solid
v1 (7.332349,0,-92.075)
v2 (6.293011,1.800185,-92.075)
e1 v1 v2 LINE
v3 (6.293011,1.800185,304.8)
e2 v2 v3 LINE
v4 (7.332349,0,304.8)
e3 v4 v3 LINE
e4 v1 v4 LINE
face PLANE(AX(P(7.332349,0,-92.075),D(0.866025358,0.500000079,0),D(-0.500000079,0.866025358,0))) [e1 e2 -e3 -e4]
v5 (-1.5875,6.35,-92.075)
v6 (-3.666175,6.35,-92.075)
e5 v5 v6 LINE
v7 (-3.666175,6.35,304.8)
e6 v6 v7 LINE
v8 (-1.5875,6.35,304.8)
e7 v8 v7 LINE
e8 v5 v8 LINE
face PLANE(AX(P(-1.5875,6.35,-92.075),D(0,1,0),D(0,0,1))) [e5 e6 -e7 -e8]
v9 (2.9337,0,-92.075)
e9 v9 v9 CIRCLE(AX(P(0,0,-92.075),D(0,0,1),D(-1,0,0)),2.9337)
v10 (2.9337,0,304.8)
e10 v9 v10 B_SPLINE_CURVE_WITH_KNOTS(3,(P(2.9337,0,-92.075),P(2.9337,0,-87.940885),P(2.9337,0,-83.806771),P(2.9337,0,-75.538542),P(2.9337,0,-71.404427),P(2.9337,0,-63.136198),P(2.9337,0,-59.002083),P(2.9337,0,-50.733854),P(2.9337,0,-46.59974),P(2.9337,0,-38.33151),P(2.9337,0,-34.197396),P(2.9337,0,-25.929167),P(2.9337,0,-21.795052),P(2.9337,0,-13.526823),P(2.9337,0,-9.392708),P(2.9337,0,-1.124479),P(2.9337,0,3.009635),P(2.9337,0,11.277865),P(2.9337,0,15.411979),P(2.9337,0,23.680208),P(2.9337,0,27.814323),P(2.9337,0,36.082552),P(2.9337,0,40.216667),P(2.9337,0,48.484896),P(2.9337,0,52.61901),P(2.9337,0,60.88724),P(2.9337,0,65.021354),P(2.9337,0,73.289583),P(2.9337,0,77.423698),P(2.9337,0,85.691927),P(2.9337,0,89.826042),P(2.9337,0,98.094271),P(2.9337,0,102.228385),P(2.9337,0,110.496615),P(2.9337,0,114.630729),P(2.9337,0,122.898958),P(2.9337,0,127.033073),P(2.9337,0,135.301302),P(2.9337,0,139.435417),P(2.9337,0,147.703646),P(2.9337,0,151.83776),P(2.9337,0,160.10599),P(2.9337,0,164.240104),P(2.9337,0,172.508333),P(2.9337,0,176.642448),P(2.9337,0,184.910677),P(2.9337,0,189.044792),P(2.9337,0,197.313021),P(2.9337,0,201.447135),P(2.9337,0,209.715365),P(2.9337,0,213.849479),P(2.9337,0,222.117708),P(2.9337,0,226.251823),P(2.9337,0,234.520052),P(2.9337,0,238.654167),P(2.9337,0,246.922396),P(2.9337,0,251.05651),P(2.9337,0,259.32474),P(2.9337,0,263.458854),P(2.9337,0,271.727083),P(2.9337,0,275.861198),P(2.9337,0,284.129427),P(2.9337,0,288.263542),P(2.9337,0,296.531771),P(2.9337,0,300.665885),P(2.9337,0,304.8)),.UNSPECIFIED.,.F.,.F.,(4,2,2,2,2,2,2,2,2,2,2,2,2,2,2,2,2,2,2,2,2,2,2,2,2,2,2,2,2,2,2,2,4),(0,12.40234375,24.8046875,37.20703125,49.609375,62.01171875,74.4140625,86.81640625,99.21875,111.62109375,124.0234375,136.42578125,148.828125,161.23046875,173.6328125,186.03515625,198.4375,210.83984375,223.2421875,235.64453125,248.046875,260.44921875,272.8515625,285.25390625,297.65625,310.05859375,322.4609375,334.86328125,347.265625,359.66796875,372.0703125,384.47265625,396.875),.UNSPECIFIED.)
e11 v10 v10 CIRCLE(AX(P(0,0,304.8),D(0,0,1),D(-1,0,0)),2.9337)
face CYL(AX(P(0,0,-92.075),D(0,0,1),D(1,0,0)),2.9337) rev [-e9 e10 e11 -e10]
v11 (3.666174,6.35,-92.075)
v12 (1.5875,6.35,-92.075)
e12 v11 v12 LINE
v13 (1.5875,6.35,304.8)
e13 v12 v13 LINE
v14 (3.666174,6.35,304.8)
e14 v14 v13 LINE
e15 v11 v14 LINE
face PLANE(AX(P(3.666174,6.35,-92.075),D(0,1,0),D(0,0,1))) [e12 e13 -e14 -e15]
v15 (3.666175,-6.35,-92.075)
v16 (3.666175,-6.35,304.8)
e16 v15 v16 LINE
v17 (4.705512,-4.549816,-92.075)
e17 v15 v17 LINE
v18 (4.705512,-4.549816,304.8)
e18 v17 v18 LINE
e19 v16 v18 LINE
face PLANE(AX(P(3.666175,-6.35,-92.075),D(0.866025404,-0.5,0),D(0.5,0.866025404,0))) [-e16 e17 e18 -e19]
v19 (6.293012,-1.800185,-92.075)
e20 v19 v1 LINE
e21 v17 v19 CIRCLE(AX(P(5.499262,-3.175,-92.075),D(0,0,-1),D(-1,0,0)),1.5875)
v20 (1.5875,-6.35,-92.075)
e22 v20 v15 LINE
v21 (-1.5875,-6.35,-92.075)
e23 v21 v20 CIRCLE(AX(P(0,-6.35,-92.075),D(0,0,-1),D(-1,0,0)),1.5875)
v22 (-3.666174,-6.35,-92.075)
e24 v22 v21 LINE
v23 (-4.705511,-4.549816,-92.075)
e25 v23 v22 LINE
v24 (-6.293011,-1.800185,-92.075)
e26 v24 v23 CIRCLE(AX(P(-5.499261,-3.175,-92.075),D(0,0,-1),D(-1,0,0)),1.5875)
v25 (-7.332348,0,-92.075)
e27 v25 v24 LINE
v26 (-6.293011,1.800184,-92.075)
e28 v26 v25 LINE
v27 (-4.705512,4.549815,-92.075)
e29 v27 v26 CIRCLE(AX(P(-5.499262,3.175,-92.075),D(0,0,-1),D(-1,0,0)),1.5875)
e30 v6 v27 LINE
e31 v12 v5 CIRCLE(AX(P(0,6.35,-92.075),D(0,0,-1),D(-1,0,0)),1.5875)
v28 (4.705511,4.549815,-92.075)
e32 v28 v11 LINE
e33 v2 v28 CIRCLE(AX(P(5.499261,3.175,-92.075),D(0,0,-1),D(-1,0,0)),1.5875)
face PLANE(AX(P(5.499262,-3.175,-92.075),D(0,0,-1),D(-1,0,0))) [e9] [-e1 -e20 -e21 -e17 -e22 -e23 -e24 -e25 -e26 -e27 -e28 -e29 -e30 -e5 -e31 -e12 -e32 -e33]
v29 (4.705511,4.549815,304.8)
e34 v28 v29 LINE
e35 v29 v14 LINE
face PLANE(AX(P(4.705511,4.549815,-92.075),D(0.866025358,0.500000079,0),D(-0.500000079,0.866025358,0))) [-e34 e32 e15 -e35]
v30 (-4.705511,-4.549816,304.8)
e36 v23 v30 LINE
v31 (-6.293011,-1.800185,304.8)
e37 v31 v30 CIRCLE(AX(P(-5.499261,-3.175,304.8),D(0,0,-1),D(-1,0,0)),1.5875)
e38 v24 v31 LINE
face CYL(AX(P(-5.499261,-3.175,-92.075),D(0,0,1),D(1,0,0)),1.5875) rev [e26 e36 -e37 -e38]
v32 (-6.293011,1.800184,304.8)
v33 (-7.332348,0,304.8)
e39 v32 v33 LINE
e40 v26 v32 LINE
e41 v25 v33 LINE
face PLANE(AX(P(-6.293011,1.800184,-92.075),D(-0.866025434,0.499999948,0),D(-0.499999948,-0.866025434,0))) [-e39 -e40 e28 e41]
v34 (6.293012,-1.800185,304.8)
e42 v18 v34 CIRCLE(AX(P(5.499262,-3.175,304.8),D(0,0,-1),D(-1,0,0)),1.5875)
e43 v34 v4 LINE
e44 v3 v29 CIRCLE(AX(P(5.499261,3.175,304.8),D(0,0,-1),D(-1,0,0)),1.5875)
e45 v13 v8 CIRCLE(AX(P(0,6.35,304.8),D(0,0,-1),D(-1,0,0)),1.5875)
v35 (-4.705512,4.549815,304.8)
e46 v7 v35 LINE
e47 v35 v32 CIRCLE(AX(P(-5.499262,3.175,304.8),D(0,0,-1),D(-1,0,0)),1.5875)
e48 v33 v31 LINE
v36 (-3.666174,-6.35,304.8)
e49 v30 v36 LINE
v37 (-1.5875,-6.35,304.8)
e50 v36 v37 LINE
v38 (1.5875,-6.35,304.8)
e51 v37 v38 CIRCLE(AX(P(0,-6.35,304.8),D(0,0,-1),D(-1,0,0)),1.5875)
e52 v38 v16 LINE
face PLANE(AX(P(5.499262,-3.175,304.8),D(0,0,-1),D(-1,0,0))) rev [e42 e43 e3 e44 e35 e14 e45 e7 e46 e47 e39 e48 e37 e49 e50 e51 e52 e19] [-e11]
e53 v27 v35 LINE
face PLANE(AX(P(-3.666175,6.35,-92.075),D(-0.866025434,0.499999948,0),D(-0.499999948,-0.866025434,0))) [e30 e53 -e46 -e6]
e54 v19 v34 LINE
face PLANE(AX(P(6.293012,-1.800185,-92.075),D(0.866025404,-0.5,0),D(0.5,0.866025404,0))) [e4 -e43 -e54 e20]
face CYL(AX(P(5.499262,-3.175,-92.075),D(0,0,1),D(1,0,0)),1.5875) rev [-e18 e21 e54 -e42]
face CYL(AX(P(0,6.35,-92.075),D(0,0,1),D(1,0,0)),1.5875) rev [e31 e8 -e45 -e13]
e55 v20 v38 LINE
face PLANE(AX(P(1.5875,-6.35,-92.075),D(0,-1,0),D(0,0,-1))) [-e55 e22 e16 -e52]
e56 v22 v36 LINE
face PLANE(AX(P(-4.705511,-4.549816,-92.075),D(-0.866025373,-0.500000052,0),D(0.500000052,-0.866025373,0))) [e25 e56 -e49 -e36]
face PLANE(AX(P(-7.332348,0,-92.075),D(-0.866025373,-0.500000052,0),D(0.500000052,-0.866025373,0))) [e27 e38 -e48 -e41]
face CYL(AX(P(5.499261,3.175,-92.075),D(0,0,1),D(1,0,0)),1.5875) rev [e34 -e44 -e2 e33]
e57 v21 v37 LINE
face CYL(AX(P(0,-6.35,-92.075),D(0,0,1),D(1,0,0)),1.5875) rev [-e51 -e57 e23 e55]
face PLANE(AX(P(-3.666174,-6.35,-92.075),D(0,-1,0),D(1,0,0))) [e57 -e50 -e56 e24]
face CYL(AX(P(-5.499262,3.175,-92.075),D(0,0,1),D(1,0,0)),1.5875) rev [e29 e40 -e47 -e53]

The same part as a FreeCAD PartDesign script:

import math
import FreeCAD as App
import Part
import Sketcher
from FreeCAD import Vector
Q = App.Units.Quantity

doc = App.newDocument("Part")
body = doc.addObject("PartDesign::Body", "Body")

# Sketch on XY plane
sketch1 = body.newObject("Sketcher::SketchObject", "Sketch")
sketch1.AttachmentSupport = (doc.getObject("XY_Plane"), [""])
sketch1.MapMode = "FlatFace"
sketch1.AttachmentOffset = App.Placement(Vector(0, 0, 12 * 25.4), App.Rotation())
sketch1.addGeometry(Part.LineSegment(Vector(6.3, -1.8, 0), Vector(7.3, 0, 0)), False)
sketch1.addGeometry(Part.LineSegment(Vector(7.3, 0, 0), Vector(6.3, 1.8, 0)), False)
sketch1.addGeometry(Part.ArcOfCircle(Part.Circle(Vector(5.5, 3.2, 0), Vector(0, 0, 1), 1.6), math.radians(120), math.radians(300)), False)
sketch1.addGeometry(Part.LineSegment(Vector(4.7, 4.5, 0), Vector(3.7, 6.3, 0)), False)
sketch1.addGeometry(Part.LineSegment(Vector(3.7, 6.3, 0), Vector(1.6, 6.3, 0)), False)
sketch1.addGeometry(Part.ArcOfCircle(Part.Circle(Vector(0, 6.3, 0), Vector(0, 0, 1), 1.6), math.radians(180), math.radians(360)), False)
sketch1.addGeometry(Part.LineSegment(Vector(-1.6, 6.3, 0), Vector(-3.7, 6.3, 0)), False)
sketch1.addGeometry(Part.LineSegment(Vector(-3.7, 6.3, 0), Vector(-4.7, 4.5, 0)), False)
sketch1.addGeometry(Part.ArcOfCircle(Part.Circle(Vector(-5.5, 3.2, 0), Vector(0, 0, 1), 1.6), math.radians(-120), math.radians(60)), False)
sketch1.addGeometry(Part.LineSegment(Vector(-6.3, 1.8, 0), Vector(-7.3, 0, 0)), False)
sketch1.addGeometry(Part.LineSegment(Vector(-7.3, 0, 0), Vector(-6.3, -1.8, 0)), False)
sketch1.addGeometry(Part.ArcOfCircle(Part.Circle(Vector(-5.5, -3.2, 0), Vector(0, 0, 1), 1.6), math.radians(-60), math.radians(120)), False)
sketch1.addGeometry(Part.LineSegment(Vector(-4.7, -4.5, 0), Vector(-3.7, -6.4, 0)), False)
sketch1.addGeometry(Part.LineSegment(Vector(-3.7, -6.4, 0), Vector(-1.6, -6.4, 0)), False)
sketch1.addGeometry(Part.ArcOfCircle(Part.Circle(Vector(0, -6.4, 0), Vector(0, 0, 1), 1.6), math.radians(0), math.radians(180)), False)
sketch1.addGeometry(Part.LineSegment(Vector(1.6, -6.4, 0), Vector(3.7, -6.4, 0)), False)
sketch1.addGeometry(Part.LineSegment(Vector(3.7, -6.4, 0), Vector(4.7, -4.5, 0)), False)
sketch1.addGeometry(Part.ArcOfCircle(Part.Circle(Vector(5.5, -3.2, 0), Vector(0, 0, 1), 1.6), math.radians(60), math.radians(240)), False)
sketch1.addGeometry(Part.Circle(Vector(0, 0, 0), Vector(0, 0, 1), 2.9), False)
sketch1.addConstraint(Sketcher.Constraint("Coincident", 0, 2, 1, 1))
sketch1.addConstraint(Sketcher.Constraint("Coincident", 1, 2, 2, 2))
sketch1.addConstraint(Sketcher.Constraint("Coincident", 2, 1, 3, 1))
sketch1.addConstraint(Sketcher.Constraint("Coincident", 3, 2, 4, 1))
sketch1.addConstraint(Sketcher.Constraint("Coincident", 4, 2, 5, 2))
sketch1.addConstraint(Sketcher.Constraint("Coincident", 5, 1, 6, 1))
sketch1.addConstraint(Sketcher.Constraint("Coincident", 6, 2, 7, 1))
sketch1.addConstraint(Sketcher.Constraint("Coincident", 7, 2, 8, 2))
sketch1.addConstraint(Sketcher.Constraint("Coincident", 8, 1, 9, 1))
sketch1.addConstraint(Sketcher.Constraint("Coincident", 9, 2, 10, 1))
sketch1.addConstraint(Sketcher.Constraint("Coincident", 10, 2, 11, 2))
sketch1.addConstraint(Sketcher.Constraint("Coincident", 11, 1, 12, 1))
sketch1.addConstraint(Sketcher.Constraint("Coincident", 12, 2, 13, 1))
sketch1.addConstraint(Sketcher.Constraint("Coincident", 13, 2, 14, 2))
sketch1.addConstraint(Sketcher.Constraint("Coincident", 14, 1, 15, 1))
sketch1.addConstraint(Sketcher.Constraint("Coincident", 15, 2, 16, 1))
sketch1.addConstraint(Sketcher.Constraint("Coincident", 16, 2, 17, 2))
sketch1.addConstraint(Sketcher.Constraint("Coincident", 17, 1, 0, 1))
sketch1.addConstraint(Sketcher.Constraint("Horizontal", 4))
sketch1.addConstraint(Sketcher.Constraint("Horizontal", 6))
sketch1.addConstraint(Sketcher.Constraint("Horizontal", 13))
sketch1.addConstraint(Sketcher.Constraint("Horizontal", 15))
sketch1.addConstraint(Sketcher.Constraint("Coincident", 18, 3, -1, 1))
sketch1.addConstraint(Sketcher.Constraint("Equal", 2, 5))
sketch1.addConstraint(Sketcher.Constraint("Equal", 5, 8))
sketch1.addConstraint(Sketcher.Constraint("Equal", 8, 11))
sketch1.addConstraint(Sketcher.Constraint("Equal", 11, 14))
sketch1.addConstraint(Sketcher.Constraint("Equal", 14, 17))
sketch1.addConstraint(Sketcher.Constraint("Symmetric", 2, 3, 11, 3, -1, 1))
sketch1.addConstraint(Sketcher.Constraint("Symmetric", 5, 3, 14, 3, -1, 1))
sketch1.addConstraint(Sketcher.Constraint("Symmetric", 8, 3, 17, 3, -1, 1))
sketch1.addConstraint(Sketcher.Constraint("Symmetric", 0, 2, 9, 2, -1, 1))
sketch1.addConstraint(Sketcher.Constraint("Symmetric", 3, 2, 12, 2, -1, 1))
sketch1.addConstraint(Sketcher.Constraint("Symmetric", 6, 2, 15, 2, -1, 1))
sketch1.addConstraint(Sketcher.Constraint("Symmetric", 2, 3, 8, 3, -2))
sketch1.addConstraint(Sketcher.Constraint("Symmetric", 4, 2, 5, 1, -2))
sketch1.addConstraint(Sketcher.Constraint("PointOnObject", 0, 2, -1))
sketch1.addConstraint(Sketcher.Constraint("Parallel", 1, 3))
sketch1.addConstraint(Sketcher.Constraint("Parallel", 0, 7))
sketch1.addConstraint(Sketcher.Constraint("Parallel", 7, 9))
sketch1.addConstraint(Sketcher.Constraint("Parallel", 3, 10))
sketch1.addConstraint(Sketcher.Constraint("Parallel", 10, 12))
sketch1.addConstraint(Sketcher.Constraint("Parallel", 9, 16))
sketch1.addConstraint(Sketcher.Constraint("Horizontal", 5, 3, 3, 2))
sketch1.addConstraint(Sketcher.Constraint("Horizontal", 2, 1, 7, 2))
sketch1.addConstraint(Sketcher.Constraint("Horizontal", 1, 2, 8, 1))
sketch1.addConstraint(Sketcher.Constraint("Equal", 1, 3))
sketch1.addConstraint(Sketcher.Constraint("Diameter", 18, Q("0.231 in")))
sketch1.addConstraint(Sketcher.Constraint("Angle", 0, Q("60 deg")))
sketch1.addConstraint(Sketcher.Constraint("Radius", 2, Q("0.0625 in")))
sketch1.addConstraint(Sketcher.Constraint("DistanceY", 14, 3, 5, 3, Q("0.5 in")))
sketch1.addConstraint(Sketcher.Constraint("DistanceY", 11, 3, 8, 3, Q("0.25 in")))
sketch1.addConstraint(Sketcher.Constraint("DistanceX", 2, 3, 1, 2, Q("0.03125 in")))
sketch1.addConstraint(Sketcher.Constraint("DistanceX", 4, 2, 4, 1, 2.078674))
pad1 = body.newObject("PartDesign::Pad", "Pad")
pad1.Profile = sketch1
pad1.Length = Q("15.625 in")
pad1.Reversed = True

doc.recompute()
